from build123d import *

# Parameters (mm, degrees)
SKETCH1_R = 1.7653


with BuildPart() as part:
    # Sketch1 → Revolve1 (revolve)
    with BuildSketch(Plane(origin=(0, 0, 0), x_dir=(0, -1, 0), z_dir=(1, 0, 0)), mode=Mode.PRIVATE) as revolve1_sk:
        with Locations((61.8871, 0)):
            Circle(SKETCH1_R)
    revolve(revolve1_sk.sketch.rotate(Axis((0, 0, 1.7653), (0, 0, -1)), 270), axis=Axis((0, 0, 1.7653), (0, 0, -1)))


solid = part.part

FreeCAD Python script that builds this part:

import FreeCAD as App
import Part
import Sketcher

V = App.Vector
Q = App.Units.Quantity

doc = App.newDocument("Part")
body = doc.addObject("PartDesign::Body", "Body")

# Sketch on YZ plane
sketch1 = doc.addObject("Sketcher::SketchObject", "Sketch")
body.addObject(sketch1)
sketch1.AttachmentSupport = (doc.YZ_Plane, [""])
sketch1.MapMode = "FlatFace"
sketch1.addGeometry(Part.Circle(V(-61.9, 0, 0), V(0, 0, 1), 1.8), False)
sketch1.addConstraint(Sketcher.Constraint("PointOnObject", 0, 3, -1))
sketch1.addConstraint(Sketcher.Constraint("Diameter", 0, Q("0.139 in")))
sketch1.addConstraint(Sketcher.Constraint("DistanceX", 0, 3, -1, 1, Q("2.4365 in")))
revolution = doc.addObject("PartDesign::Revolution", "Revolution")
body.addObject(revolution)
revolution.Profile = sketch1
revolution.ReferenceAxis = (sketch1, ["V_Axis"])
revolution.Angle = 360

doc.recompute()
